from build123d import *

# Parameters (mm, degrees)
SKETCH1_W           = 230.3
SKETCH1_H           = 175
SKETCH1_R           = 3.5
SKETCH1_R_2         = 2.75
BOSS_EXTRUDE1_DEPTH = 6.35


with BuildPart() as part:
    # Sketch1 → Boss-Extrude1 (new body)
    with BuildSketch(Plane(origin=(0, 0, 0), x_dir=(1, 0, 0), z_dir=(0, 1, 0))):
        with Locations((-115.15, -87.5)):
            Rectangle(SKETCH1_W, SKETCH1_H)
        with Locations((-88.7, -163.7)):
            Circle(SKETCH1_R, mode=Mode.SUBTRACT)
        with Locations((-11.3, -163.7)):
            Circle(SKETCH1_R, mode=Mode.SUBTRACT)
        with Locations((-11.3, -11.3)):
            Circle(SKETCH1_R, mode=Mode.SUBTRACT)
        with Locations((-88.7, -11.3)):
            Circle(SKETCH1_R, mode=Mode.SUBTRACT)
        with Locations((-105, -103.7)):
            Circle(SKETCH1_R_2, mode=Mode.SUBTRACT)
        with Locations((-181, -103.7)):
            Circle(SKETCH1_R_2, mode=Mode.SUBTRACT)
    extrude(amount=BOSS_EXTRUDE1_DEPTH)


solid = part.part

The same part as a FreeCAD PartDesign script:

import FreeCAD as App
import Part
import Sketcher
from FreeCAD import Vector
Q = App.Units.Quantity


def add_polygon(sketch, points):
    """Adds a closed chain of lines whose ends are joined by coincident constraints."""
    first, n = sketch.GeometryCount, len(points)
    for a, b in zip(points, points[1:] + points[:1]):
        sketch.addGeometry(Part.LineSegment(App.Vector(*a, 0), App.Vector(*b, 0)), False)
    for i in range(n):
        sketch.addConstraint(Sketcher.Constraint("Coincident", first + i, 2, first + (i + 1) % n, 1))

doc = App.newDocument("Part")
body = doc.addObject("PartDesign::Body", "Body")

# Sketch on XZ plane
sketch1 = body.newObject("Sketcher::SketchObject", "Sketch")
sketch1.AttachmentSupport = (doc.getObject("XZ_Plane"), [""])
sketch1.MapMode = "FlatFace"
add_polygon(sketch1, [(-230.3, 0), (-230.3, 175), (0, 175), (0, 0)])  # lines 0-3
sketch1.addGeometry(Part.Circle(Vector(-181, 103.7, 0), Vector(0, 0, 1), 2.75), False)  # 4
sketch1.addGeometry(Part.Circle(Vector(-105, 103.7, 0), Vector(0, 0, 1), 2.75), False)  # 5
sketch1.addGeometry(Part.Circle(Vector(-88.7, 163.7, 0), Vector(0, 0, 1), 3.5), False)  # 6
sketch1.addGeometry(Part.Circle(Vector(-11.3, 163.7, 0), Vector(0, 0, 1), 3.5), False)  # 7
sketch1.addGeometry(Part.Circle(Vector(-88.7, 11.3, 0), Vector(0, 0, 1), 3.5), False)  # 8
sketch1.addGeometry(Part.Circle(Vector(-11.3, 11.3, 0), Vector(0, 0, 1), 3.5), False)  # 9
sketch1.addConstraint(Sketcher.Constraint("Vertical", 0))
sketch1.addConstraint(Sketcher.Constraint("Horizontal", 1))
sketch1.addConstraint(Sketcher.Constraint("Vertical", 2))
sketch1.addConstraint(Sketcher.Constraint("Horizontal", 3))
sketch1.addConstraint(Sketcher.Constraint("Coincident", 2, 2, -1, 1))
sketch1.addConstraint(Sketcher.Constraint("Equal", 4, 5))
sketch1.addConstraint(Sketcher.Constraint("Equal", 6, 7))
sketch1.addConstraint(Sketcher.Constraint("Equal", 7, 8))
sketch1.addConstraint(Sketcher.Constraint("Equal", 8, 9))
sketch1.addConstraint(Sketcher.Constraint("Horizontal", 4, 3, 5, 3))
sketch1.addConstraint(Sketcher.Constraint("Horizontal", 6, 3, 7, 3))
sketch1.addConstraint(Sketcher.Constraint("Horizontal", 8, 3, 9, 3))
sketch1.addConstraint(Sketcher.Constraint("Vertical", 6, 3, 8, 3))
sketch1.addConstraint(Sketcher.Constraint("Vertical", 7, 3, 9, 3))
sketch1.addConstraint(Sketcher.Constraint("Diameter", 6, Q("7 mm")))
sketch1.addConstraint(Sketcher.Constraint("Diameter", 4, Q("5.5 mm")))
sketch1.addConstraint(Sketcher.Constraint("DistanceY", 0, 1, 0, 2, Q("175 mm")))
sketch1.addConstraint(Sketcher.Constraint("DistanceX", 1, 1, 1, 2, Q("230.3 mm")))
sketch1.addConstraint(Sketcher.Constraint("DistanceX", 4, 3, -1, 1, Q("181 mm")))
sketch1.addConstraint(Sketcher.Constraint("DistanceX", 5, 3, -1, 1, Q("105 mm")))
sketch1.addConstraint(Sketcher.Constraint("DistanceY", 5, 3, 6, 3, Q("60 mm")))
sketch1.addConstraint(Sketcher.Constraint("DistanceX", 0, 2, 7, 3, Q("219 mm")))
sketch1.addConstraint(Sketcher.Constraint("DistanceY", -1, 1, 4, 3, Q("103.7 mm")))
sketch1.addConstraint(Sketcher.Constraint("DistanceX", 6, 3, -1, 1, Q("88.7 mm")))
sketch1.addConstraint(Sketcher.Constraint("DistanceY", -1, 1, 8, 3, Q("11.3 mm")))
pad1 = body.newObject("PartDesign::Pad", "Pad")
pad1.Profile = sketch1
pad1.Length = 6.35
pad1.Reversed = True

doc.recompute()
